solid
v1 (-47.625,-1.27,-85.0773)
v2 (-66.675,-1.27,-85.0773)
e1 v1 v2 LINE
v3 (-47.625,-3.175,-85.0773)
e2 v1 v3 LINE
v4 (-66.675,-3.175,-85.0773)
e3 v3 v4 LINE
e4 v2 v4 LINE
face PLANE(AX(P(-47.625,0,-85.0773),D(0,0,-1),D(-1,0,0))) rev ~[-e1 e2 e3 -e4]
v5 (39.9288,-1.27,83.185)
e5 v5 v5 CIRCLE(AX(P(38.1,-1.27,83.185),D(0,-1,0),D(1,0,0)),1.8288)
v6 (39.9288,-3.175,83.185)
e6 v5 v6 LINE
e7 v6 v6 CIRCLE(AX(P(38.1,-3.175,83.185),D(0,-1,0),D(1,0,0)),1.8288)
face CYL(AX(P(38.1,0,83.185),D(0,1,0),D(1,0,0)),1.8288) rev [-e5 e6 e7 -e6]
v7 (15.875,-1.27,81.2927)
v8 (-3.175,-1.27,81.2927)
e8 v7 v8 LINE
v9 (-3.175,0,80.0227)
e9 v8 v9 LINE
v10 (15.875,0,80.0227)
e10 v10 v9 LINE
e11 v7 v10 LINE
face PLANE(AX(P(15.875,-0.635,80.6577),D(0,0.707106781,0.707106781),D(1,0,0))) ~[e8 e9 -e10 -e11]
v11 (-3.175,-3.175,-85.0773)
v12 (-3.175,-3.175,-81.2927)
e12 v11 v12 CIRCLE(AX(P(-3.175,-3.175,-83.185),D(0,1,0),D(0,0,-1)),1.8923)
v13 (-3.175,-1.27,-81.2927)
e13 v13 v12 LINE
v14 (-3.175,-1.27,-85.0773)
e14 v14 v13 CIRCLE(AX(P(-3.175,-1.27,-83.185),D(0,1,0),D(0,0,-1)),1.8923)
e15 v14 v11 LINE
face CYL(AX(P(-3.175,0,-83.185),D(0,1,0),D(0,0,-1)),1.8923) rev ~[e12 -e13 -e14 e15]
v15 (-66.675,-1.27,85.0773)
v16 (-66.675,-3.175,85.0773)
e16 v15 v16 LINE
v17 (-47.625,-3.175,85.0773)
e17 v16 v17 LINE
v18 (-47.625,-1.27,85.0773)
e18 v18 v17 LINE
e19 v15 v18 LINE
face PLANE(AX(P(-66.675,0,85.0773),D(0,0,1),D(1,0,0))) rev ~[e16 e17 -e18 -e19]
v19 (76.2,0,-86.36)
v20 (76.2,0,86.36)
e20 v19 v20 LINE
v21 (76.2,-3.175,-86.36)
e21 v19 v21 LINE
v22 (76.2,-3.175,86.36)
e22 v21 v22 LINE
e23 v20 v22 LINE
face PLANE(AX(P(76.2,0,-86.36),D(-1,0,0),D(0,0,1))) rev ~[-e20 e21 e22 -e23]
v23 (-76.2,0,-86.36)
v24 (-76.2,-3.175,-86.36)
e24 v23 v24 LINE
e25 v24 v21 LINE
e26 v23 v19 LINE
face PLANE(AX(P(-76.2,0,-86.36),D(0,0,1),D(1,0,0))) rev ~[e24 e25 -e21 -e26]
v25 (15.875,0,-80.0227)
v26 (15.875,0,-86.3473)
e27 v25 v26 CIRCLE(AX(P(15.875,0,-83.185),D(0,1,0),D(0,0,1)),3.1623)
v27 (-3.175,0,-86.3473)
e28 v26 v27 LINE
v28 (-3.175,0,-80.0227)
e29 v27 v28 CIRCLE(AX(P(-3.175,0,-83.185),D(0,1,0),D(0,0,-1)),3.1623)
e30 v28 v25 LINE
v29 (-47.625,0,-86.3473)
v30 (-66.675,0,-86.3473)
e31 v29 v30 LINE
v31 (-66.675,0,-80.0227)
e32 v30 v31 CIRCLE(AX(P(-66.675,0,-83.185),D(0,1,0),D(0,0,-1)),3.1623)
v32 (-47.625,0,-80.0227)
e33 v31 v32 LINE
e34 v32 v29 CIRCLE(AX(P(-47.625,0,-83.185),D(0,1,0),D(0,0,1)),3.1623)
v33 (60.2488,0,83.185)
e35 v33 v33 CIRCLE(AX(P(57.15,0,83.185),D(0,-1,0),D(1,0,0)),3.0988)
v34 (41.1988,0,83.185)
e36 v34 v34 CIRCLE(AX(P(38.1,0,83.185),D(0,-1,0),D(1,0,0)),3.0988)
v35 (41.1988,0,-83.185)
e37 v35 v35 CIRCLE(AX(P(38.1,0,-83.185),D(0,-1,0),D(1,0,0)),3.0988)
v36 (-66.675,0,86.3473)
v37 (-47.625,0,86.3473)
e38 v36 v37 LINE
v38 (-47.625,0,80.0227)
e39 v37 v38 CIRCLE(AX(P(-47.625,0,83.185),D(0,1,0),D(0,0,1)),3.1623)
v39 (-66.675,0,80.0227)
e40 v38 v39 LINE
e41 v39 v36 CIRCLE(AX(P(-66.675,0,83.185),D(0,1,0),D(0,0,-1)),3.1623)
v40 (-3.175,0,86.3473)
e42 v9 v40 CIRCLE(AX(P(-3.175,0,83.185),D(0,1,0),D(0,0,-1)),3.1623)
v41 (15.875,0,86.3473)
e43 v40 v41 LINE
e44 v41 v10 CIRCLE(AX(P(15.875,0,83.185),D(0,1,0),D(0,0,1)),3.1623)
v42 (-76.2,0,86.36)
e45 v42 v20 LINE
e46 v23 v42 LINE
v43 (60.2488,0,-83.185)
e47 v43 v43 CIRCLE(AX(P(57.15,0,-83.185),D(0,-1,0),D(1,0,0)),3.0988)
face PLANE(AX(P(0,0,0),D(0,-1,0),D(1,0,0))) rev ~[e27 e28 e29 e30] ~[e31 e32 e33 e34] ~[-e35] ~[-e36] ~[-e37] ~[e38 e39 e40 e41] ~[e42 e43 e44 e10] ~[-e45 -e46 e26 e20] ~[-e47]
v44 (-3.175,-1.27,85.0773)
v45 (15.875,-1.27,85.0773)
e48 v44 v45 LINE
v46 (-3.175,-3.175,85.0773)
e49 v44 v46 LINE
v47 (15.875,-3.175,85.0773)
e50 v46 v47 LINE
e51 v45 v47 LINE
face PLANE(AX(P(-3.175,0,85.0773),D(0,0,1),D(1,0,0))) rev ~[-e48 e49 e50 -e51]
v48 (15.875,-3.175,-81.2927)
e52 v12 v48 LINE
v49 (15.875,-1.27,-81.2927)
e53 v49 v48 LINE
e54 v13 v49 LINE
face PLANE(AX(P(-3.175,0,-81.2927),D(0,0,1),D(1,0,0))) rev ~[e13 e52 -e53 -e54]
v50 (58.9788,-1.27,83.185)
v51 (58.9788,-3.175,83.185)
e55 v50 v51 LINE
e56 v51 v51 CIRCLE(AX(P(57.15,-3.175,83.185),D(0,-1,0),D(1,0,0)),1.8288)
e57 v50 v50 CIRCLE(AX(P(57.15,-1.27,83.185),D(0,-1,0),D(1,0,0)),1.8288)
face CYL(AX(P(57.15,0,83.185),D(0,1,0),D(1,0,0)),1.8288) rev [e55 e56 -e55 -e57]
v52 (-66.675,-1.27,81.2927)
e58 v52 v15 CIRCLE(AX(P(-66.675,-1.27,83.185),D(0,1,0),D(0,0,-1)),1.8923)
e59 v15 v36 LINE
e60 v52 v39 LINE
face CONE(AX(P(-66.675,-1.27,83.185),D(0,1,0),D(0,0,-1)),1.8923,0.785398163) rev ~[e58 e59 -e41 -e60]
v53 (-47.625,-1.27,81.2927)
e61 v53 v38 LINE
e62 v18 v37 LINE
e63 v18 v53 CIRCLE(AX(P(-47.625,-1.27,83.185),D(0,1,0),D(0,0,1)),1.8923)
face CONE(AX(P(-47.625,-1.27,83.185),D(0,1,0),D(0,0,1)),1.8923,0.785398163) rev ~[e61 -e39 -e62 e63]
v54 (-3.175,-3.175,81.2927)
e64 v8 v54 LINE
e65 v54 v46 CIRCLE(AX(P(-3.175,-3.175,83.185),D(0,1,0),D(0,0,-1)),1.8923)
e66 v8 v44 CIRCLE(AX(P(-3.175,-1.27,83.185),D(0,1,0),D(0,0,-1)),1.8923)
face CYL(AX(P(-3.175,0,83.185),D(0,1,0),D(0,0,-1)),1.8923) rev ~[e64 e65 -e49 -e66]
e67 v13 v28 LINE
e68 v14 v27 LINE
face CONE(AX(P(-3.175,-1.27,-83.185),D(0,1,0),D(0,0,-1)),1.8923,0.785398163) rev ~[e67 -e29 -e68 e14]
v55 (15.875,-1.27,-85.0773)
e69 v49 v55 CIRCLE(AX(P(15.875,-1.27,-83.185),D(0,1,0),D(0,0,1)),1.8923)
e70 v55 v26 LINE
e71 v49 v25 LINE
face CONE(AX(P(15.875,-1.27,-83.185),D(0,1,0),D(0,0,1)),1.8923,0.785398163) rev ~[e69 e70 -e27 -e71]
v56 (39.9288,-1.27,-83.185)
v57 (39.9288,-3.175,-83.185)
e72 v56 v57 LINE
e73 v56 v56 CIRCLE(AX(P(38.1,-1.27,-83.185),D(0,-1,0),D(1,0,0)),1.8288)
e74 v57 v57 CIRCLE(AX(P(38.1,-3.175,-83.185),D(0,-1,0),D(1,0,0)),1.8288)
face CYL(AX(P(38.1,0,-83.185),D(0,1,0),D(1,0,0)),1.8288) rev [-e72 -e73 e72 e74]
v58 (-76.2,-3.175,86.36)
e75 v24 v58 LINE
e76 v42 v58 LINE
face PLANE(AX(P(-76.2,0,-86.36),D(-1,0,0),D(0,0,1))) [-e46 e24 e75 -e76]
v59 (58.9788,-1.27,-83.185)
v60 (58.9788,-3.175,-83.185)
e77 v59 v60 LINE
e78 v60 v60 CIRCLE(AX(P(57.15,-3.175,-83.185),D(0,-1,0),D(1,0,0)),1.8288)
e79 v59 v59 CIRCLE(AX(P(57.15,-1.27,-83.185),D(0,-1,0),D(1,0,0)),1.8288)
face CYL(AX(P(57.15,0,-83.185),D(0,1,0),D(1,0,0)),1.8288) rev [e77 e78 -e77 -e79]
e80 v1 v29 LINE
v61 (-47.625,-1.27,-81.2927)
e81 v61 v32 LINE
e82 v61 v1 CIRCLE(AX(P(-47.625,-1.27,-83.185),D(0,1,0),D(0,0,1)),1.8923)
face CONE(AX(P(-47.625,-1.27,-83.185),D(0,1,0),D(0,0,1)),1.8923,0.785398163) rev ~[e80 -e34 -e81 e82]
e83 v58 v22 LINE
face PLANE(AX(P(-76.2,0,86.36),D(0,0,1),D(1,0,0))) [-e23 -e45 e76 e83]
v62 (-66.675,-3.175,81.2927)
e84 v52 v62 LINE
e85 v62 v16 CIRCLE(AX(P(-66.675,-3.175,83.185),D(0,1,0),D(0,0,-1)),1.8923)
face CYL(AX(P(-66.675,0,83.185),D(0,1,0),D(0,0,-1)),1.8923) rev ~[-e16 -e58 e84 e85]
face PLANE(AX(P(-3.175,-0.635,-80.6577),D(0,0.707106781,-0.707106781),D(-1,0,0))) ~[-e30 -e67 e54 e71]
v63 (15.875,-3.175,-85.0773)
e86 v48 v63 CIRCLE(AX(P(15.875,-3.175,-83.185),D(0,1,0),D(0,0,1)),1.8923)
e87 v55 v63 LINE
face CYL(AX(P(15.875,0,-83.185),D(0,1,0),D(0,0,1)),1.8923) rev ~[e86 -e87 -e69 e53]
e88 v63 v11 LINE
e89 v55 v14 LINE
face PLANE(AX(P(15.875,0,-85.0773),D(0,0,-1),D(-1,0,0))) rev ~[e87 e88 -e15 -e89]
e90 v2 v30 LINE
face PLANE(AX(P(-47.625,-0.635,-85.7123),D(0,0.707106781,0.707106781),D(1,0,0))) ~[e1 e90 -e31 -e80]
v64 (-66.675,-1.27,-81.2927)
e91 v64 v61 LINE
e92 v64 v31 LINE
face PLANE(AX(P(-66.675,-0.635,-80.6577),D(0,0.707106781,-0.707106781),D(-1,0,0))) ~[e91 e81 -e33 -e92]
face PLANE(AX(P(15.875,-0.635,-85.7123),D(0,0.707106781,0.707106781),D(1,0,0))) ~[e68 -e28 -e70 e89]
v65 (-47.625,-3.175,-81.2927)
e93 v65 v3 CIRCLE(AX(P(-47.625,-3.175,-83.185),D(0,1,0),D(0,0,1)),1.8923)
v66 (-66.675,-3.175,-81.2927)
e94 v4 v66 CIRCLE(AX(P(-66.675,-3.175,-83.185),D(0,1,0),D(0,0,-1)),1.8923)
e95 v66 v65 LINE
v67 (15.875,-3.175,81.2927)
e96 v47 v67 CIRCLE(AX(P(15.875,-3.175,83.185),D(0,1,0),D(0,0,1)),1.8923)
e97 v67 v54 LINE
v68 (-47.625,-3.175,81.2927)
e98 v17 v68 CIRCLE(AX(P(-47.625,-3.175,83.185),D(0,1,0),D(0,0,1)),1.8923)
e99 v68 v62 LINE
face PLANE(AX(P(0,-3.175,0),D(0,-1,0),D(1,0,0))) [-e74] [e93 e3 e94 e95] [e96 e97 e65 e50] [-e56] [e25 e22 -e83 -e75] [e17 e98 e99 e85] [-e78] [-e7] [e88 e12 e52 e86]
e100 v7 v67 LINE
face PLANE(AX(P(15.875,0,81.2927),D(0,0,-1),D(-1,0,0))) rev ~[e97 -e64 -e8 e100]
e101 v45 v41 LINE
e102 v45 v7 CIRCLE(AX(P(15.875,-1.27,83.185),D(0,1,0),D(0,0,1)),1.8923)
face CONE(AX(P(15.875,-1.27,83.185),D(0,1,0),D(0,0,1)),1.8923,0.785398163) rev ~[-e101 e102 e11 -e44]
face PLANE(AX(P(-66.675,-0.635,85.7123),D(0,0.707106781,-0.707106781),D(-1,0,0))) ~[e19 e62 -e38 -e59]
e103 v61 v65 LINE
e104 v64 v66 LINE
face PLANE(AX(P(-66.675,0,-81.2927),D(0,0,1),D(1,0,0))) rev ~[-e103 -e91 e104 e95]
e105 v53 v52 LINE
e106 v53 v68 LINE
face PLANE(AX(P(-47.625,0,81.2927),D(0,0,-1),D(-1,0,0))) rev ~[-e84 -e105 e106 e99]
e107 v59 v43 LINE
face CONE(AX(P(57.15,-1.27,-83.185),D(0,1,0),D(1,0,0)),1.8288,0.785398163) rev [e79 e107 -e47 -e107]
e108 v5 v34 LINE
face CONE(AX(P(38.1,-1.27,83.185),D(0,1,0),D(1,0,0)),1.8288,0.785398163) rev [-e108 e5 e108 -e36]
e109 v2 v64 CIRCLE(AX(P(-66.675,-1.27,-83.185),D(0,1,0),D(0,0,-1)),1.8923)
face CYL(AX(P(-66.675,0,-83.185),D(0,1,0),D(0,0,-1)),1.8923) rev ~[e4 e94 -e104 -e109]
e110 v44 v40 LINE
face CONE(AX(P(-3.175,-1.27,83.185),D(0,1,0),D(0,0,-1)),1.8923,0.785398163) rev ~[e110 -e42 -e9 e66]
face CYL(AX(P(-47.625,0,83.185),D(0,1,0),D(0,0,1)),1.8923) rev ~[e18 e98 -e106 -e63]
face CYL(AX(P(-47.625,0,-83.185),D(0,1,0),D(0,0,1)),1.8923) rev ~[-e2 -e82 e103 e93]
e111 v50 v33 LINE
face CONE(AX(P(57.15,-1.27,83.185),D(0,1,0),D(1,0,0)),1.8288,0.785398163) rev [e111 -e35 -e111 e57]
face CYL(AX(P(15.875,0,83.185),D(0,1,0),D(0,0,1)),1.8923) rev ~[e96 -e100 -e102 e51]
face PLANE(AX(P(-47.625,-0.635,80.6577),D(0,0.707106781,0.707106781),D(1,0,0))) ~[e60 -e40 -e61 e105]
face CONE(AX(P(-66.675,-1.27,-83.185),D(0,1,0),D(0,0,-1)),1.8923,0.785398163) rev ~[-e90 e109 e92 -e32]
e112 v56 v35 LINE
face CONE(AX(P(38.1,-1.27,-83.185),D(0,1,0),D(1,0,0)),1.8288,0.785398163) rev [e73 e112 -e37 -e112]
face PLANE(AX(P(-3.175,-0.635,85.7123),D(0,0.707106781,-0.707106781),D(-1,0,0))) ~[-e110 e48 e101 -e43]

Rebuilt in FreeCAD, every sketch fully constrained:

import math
import FreeCAD as App
import Part
import Sketcher

V = App.Vector
Q = App.Units.Quantity


def edges_at(feature, points):
    """Names of the edges that pass closest to the given points."""
    edges = feature.Shape.Edges
    near = lambda p: min(range(len(edges)), key=lambda i: edges[i].distToShape(Part.Vertex(*p))[0])
    return sorted({f"Edge{near(p) + 1}" for p in points})

doc = App.newDocument("Part")
body = doc.addObject("PartDesign::Body", "Body")

sketch1 = doc.addObject("Sketcher::SketchObject", "Sketch")
body.addObject(sketch1)
sketch1.AttachmentSupport = (doc.XZ_Plane, [""])
sketch1.MapMode = "FlatFace"
sketch1.addGeometry([
    Part.LineSegment(V(-76.2, 86.4, 0), V(-76.2, -86.4, 0)),
    Part.LineSegment(V(-76.2, -86.4, 0), V(76.2, -86.4, 0)),
    Part.LineSegment(V(76.2, -86.4, 0), V(76.2, 86.4, 0)),
    Part.LineSegment(V(76.2, 86.4, 0), V(-76.2, 86.4, 0)),
    Part.LineSegment(V(-47.6, -85.1, 0), V(-66.7, -85.1, 0)),
    Part.ArcOfCircle(Part.Circle(V(-66.7, -83.2, 0), V(0, 0, 1), 1.9), math.radians(90), math.radians(270)),
    Part.LineSegment(V(-66.7, -81.3, 0), V(-47.6, -81.3, 0)),
    Part.ArcOfCircle(Part.Circle(V(-47.6, -83.2, 0), V(0, 0, 1), 1.9), math.radians(-90), math.radians(90)),
    Part.ArcOfCircle(Part.Circle(V(15.9, -83.2, 0), V(0, 0, 1), 1.9), math.radians(-90), math.radians(90)),
    Part.LineSegment(V(15.9, -85.1, 0), V(-3.2, -85.1, 0)),
    Part.ArcOfCircle(Part.Circle(V(-3.2, -83.2, 0), V(0, 0, 1), 1.9), math.radians(90), math.radians(270)),
    Part.LineSegment(V(-3.2, -81.3, 0), V(15.9, -81.3, 0)),
    Part.Circle(V(38.1, -83.2, 0), V(0, 0, 1), 1.8),
    Part.Circle(V(57.1, -83.2, 0), V(0, 0, 1), 1.8),
    Part.ArcOfCircle(Part.Circle(V(-66.7, 83.2, 0), V(0, 0, 1), 1.9), math.radians(90), math.radians(270)),
    Part.LineSegment(V(-66.7, 85.1, 0), V(-47.6, 85.1, 0)),
    Part.ArcOfCircle(Part.Circle(V(-47.6, 83.2, 0), V(0, 0, 1), 1.9), math.radians(-90), math.radians(90)),
    Part.LineSegment(V(-47.6, 81.3, 0), V(-66.7, 81.3, 0)),
    Part.LineSegment(V(15.9, 81.3, 0), V(-3.2, 81.3, 0)),
    Part.ArcOfCircle(Part.Circle(V(-3.2, 83.2, 0), V(0, 0, 1), 1.9), math.radians(90), math.radians(270)),
    Part.LineSegment(V(-3.2, 85.1, 0), V(15.9, 85.1, 0)),
    Part.ArcOfCircle(Part.Circle(V(15.9, 83.2, 0), V(0, 0, 1), 1.9), math.radians(-90), math.radians(90)),
    Part.Circle(V(38.1, 83.2, 0), V(0, 0, 1), 1.8),
    Part.Circle(V(57.1, 83.2, 0), V(0, 0, 1), 1.8),
], False)
sketch1.addConstraint([
    Sketcher.Constraint("Coincident", 0, 2, 1, 1),
    Sketcher.Constraint("Coincident", 1, 2, 2, 1),
    Sketcher.Constraint("Coincident", 2, 2, 3, 1),
    Sketcher.Constraint("Coincident", 3, 2, 0, 1),
    Sketcher.Constraint("Tangent", 4, 2, 5, 2),
    Sketcher.Constraint("Tangent", 5, 1, 6, 1),
    Sketcher.Constraint("Tangent", 6, 2, 7, 2),
    Sketcher.Constraint("Tangent", 7, 1, 4, 1),
    Sketcher.Constraint("Tangent", 8, 1, 9, 1),
    Sketcher.Constraint("Tangent", 9, 2, 10, 2),
    Sketcher.Constraint("Tangent", 10, 1, 11, 1),
    Sketcher.Constraint("Tangent", 11, 2, 8, 2),
    Sketcher.Constraint("Tangent", 14, 1, 15, 1),
    Sketcher.Constraint("Tangent", 15, 2, 16, 2),
    Sketcher.Constraint("Tangent", 16, 1, 17, 1),
    Sketcher.Constraint("Tangent", 17, 2, 14, 2),
    Sketcher.Constraint("Tangent", 18, 2, 19, 2),
    Sketcher.Constraint("Tangent", 19, 1, 20, 1),
    Sketcher.Constraint("Tangent", 20, 2, 21, 2),
    Sketcher.Constraint("Tangent", 21, 1, 18, 1),
    Sketcher.Constraint("Vertical", 0),
    Sketcher.Constraint("Horizontal", 1),
    Sketcher.Constraint("Vertical", 2),
    Sketcher.Constraint("Horizontal", 3),
    Sketcher.Constraint("Horizontal", 4),
    Sketcher.Constraint("Horizontal", 6),
    Sketcher.Constraint("Horizontal", 9),
    Sketcher.Constraint("Horizontal", 11),
    Sketcher.Constraint("Horizontal", 15),
    Sketcher.Constraint("Horizontal", 17),
    Sketcher.Constraint("Horizontal", 18),
    Sketcher.Constraint("Horizontal", 20),
    Sketcher.Constraint("Equal", 7, 8),
    Sketcher.Constraint("Equal", 12, 13),
    Sketcher.Constraint("Equal", 10, 14),
    Sketcher.Constraint("Equal", 16, 19),
    Sketcher.Constraint("Equal", 13, 22),
    Sketcher.Constraint("Equal", 22, 23),
    Sketcher.Constraint("Symmetric", 0, 2, 2, 2, -1, 1),
    Sketcher.Constraint("Symmetric", 5, 3, 14, 3, -1),
    Sketcher.Constraint("Symmetric", 10, 3, 19, 3, -1),
    Sketcher.Constraint("Symmetric", 12, 3, 22, 3, -1),
    Sketcher.Constraint("Symmetric", 13, 3, 23, 3, -1),
    Sketcher.Constraint("Horizontal", 7, 3, 8, 3),
    Sketcher.Constraint("Horizontal", 10, 3, 12, 3),
    Sketcher.Constraint("Horizontal", 12, 3, 13, 3),
    Sketcher.Constraint("Vertical", 7, 3, 16, 3),
    Sketcher.Constraint("Vertical", 8, 3, 21, 3),
    Sketcher.Constraint("Equal", 6, 9),
    Sketcher.Constraint("DistanceX", 1, 1, 1, 2, Q("6 in")),
    Sketcher.Constraint("Diameter", 12, Q("0.144 in")),
    Sketcher.Constraint("DistanceY", 0, 2, 0, 1, Q("6.8 in")),
    Sketcher.Constraint("DistanceX", 4, 2, 4, 1, Q("0.75 in")),
    Sketcher.Constraint("DistanceX", -1, 1, 12, 3, Q("1.5 in")),
    Sketcher.Constraint("Radius", 5, Q("0.0745 in")),
    Sketcher.Constraint("DistanceX", 7, 3, 8, 3, Q("2.5 in")),
    Sketcher.Constraint("DistanceX", -1, 1, 13, 3, Q("2.25 in")),
    Sketcher.Constraint("DistanceY", 5, 3, 14, 3, Q("6.55 in")),
    Sketcher.Constraint("DistanceX", 5, 3, -1, 1, Q("2.625 in")),
])
pad1 = doc.addObject("PartDesign::Pad", "Pad")
body.addObject(pad1)
pad1.Profile = sketch1
pad1.Length = Q("0.125 in")
doc.recompute()

chamfer = doc.addObject("PartDesign::Chamfer", "Chamfer")
body.addObject(chamfer)
chamfer.Base = (pad1, edges_at(pad1, [
    (55.321, 0, 83.185),
    (36.271, 0, 83.185),
    (17.767, 0, 83.185),
    (6.35, 0, 85.077),
    (-5.067, 0, 83.185),
    (6.35, 0, 81.293),
    (-45.733, 0, 83.185),
    (-57.15, 0, 85.077),
    (-57.15, 0, 81.293),
    (-68.567, 0, 83.185),
    (-57.15, 0, -81.293),
    (-45.733, 0, -83.185),
    (-57.15, 0, -85.077),
    (-68.567, 0, -83.185),
    (-5.067, 0, -83.185),
    (6.35, 0, -81.293),
    (17.767, 0, -83.185),
    (6.35, 0, -85.077),
    (36.271, 0, -83.185),
    (55.321, 0, -83.185),
]))
chamfer.Size = Q("0.05 in")

doc.recompute()
